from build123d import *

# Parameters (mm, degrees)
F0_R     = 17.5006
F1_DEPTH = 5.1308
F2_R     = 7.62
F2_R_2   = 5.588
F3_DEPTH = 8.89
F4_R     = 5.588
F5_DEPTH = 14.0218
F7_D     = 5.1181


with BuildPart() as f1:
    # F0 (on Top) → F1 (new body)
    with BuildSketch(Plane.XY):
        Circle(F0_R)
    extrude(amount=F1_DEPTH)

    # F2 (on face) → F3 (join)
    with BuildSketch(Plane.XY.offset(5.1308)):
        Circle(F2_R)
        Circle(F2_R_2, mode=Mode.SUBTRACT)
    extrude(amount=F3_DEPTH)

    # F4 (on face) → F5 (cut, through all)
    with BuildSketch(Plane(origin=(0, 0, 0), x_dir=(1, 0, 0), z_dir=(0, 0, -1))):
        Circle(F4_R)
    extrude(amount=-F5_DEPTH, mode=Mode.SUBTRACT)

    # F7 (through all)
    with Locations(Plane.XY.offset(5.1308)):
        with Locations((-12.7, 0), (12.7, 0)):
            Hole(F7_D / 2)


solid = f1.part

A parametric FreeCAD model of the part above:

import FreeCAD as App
import Part
import Sketcher

V = App.Vector
Q = App.Units.Quantity

doc = App.newDocument("Part")
body = doc.addObject("PartDesign::Body", "Body")

sketch1 = doc.addObject("Sketcher::SketchObject", "Sketch")
body.addObject(sketch1)
sketch1.AttachmentSupport = (doc.XY_Plane, [""])
sketch1.MapMode = "FlatFace"
sketch1.addGeometry(Part.Circle(V(0, 0, 0), V(0, 0, 1), 18), False)
sketch1.addConstraint([
    Sketcher.Constraint("Coincident", 0, 3, -1, 1),
    Sketcher.Constraint("Diameter", 0, Q("1.378 in")),
])
pad1 = doc.addObject("PartDesign::Pad", "Pad")
body.addObject(pad1)
pad1.Profile = sketch1
pad1.Length = Q("0.202 in")

sketch2 = doc.addObject("Sketcher::SketchObject", "Sketch001")
body.addObject(sketch2)
sketch2.AttachmentSupport = (doc.XY_Plane, [""])
sketch2.MapMode = "FlatFace"
sketch2.AttachmentOffset = App.Placement(V(0, 0, 0.202 * 25.4), App.Rotation())
sketch2.addGeometry([
    Part.Circle(V(0, 0, 0), V(0, 0, 1), 8),
    Part.Circle(V(0, 0, 0), V(0, 0, 1), 6),
], False)
sketch2.addConstraint([
    Sketcher.Constraint("Coincident", 0, 3, -1, 1),
    Sketcher.Constraint("Coincident", 1, 3, -1, 1),
    Sketcher.Constraint("Diameter", 0, Q("0.6 in")),
    Sketcher.Constraint("Diameter", 1, Q("0.44 in")),
])
pad2 = doc.addObject("PartDesign::Pad", "Pad001")
body.addObject(pad2)
pad2.Profile = sketch2
pad2.Length = Q("0.35 in")

sketch3 = doc.addObject("Sketcher::SketchObject", "Sketch002")
body.addObject(sketch3)
sketch3.AttachmentSupport = (doc.XY_Plane, [""])
sketch3.MapMode = "FlatFace"
sketch3.addGeometry(Part.Circle(V(0, 0, 0), V(0, 0, 1), 6), False)
sketch3.addConstraint([
    Sketcher.Constraint("Coincident", 0, 3, -1, 1),
    Sketcher.Constraint("Diameter", 0, Q("0.44 in")),
])
pocket1 = doc.addObject("PartDesign::Pocket", "Pocket")
body.addObject(pocket1)
pocket1.Profile = sketch3
pocket1.Type = "ThroughAll"
pocket1.Reversed = True

sketch4 = doc.addObject("Sketcher::SketchObject", "Sketch003")
body.addObject(sketch4)
sketch4.AttachmentSupport = (doc.XY_Plane, [""])
sketch4.MapMode = "FlatFace"
sketch4.AttachmentOffset = App.Placement(V(0, 0, 0.202 * 25.4), App.Rotation())
sketch4.addGeometry([
    Part.Circle(V(-12.7, 0, 0), V(0, 0, 1), 2.6),
    Part.Circle(V(12.7, 0, 0), V(0, 0, 1), 2.6),
], False)
sketch4.addConstraint([
    Sketcher.Constraint("Equal", 0, 1),
    Sketcher.Constraint("Symmetric", 0, 3, 1, 3, -1, 1),
    Sketcher.Constraint("PointOnObject", 0, 3, -1),
    Sketcher.Constraint("DistanceX", 0, 3, 1, 3, Q("1 in")),
    Sketcher.Constraint("Diameter", 0, Q("0.2015 in")),
])
doc.recompute()
hole = doc.addObject("PartDesign::Hole", "Hole")
body.addObject(hole)
hole.Profile = sketch4
hole.ThreadType = "None"
hole.Diameter = Q("0.2015 in")
hole.DepthType = "ThroughAll"

doc.recompute()
